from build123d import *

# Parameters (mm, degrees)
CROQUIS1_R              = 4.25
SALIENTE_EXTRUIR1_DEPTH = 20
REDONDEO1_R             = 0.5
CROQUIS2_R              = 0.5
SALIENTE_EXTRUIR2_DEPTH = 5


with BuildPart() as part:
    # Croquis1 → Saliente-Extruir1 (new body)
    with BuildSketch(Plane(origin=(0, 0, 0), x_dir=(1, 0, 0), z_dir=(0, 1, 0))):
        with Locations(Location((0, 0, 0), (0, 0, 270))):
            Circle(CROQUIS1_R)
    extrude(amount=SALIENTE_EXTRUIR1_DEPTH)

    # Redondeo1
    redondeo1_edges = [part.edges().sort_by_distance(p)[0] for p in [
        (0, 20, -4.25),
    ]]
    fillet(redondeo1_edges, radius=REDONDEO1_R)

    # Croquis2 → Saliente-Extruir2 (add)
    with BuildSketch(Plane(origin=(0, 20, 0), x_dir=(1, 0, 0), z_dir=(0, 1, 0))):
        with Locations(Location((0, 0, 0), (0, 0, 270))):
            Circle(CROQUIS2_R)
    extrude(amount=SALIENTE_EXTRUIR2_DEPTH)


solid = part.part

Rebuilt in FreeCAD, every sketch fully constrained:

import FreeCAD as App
import Part
import Sketcher

V = App.Vector


def edges_at(feature, points):
    """Names of the edges that pass closest to the given points."""
    edges = feature.Shape.Edges
    near = lambda p: min(range(len(edges)), key=lambda i: edges[i].distToShape(Part.Vertex(*p))[0])
    return sorted({f"Edge{near(p) + 1}" for p in points})

doc = App.newDocument("Part")
params = doc.addObject("Spreadsheet::Sheet", "Params")
for row, (alias, value) in enumerate([
    ("sketch1_diameter", "8.5 mm"),
    ("pad1_length", "20 mm"),
    ("fillet_radius", "0.5 mm"),
    ("sketch2_diameter", "1 mm"),
    ("pad2_length", "5 mm"),
], start=1):
    params.set(f"A{row}", alias)
    params.set(f"B{row}", "=" + value)
    params.setAlias(f"B{row}", alias)

body = doc.addObject("PartDesign::Body", "Body")

# Sketch on XZ plane
sketch1 = body.newObject("Sketcher::SketchObject", "Sketch")
sketch1.AttachmentSupport = (doc.getObject("XZ_Plane"), [""])
sketch1.MapMode = "FlatFace"
sketch1.addGeometry(Part.Circle(V(0, 0, 0), V(0, 0, 1), 4.2), False)
sketch1.addConstraint(Sketcher.Constraint("Coincident", 0, 3, -1, 1))
sketch1.addConstraint(Sketcher.Constraint("Diameter", 0, 8.5))
sketch1.setExpression("Constraints[1]", "Params.sketch1_diameter")
pad1 = body.newObject("PartDesign::Pad", "Pad")
pad1.Profile = sketch1
pad1.setExpression("Length", "Params.pad1_length")
pad1.Reversed = True
doc.recompute()

fillet = body.newObject("PartDesign::Fillet", "Fillet")
fillet.Base = (pad1, edges_at(pad1, [(0, 20, -4.25)]))
fillet.setExpression("Radius", "Params.fillet_radius")

# Sketch on XZ plane
sketch2 = body.newObject("Sketcher::SketchObject", "Sketch001")
sketch2.AttachmentSupport = (doc.getObject("XZ_Plane"), [""])
sketch2.MapMode = "FlatFace"
sketch2.AttachmentOffset = App.Placement(V(0, 0, -20), App.Rotation())
sketch2.addGeometry(Part.Circle(V(0, 0, 0), V(0, 0, 1), 0.5), False)
sketch2.addConstraint(Sketcher.Constraint("Coincident", 0, 3, -1, 1))
sketch2.addConstraint(Sketcher.Constraint("Diameter", 0, 1.0))
sketch2.setExpression("Constraints[1]", "Params.sketch2_diameter")
pad2 = body.newObject("PartDesign::Pad", "Pad001")
pad2.Profile = sketch2
pad2.setExpression("Length", "Params.pad2_length")
pad2.Reversed = True

doc.recompute()
